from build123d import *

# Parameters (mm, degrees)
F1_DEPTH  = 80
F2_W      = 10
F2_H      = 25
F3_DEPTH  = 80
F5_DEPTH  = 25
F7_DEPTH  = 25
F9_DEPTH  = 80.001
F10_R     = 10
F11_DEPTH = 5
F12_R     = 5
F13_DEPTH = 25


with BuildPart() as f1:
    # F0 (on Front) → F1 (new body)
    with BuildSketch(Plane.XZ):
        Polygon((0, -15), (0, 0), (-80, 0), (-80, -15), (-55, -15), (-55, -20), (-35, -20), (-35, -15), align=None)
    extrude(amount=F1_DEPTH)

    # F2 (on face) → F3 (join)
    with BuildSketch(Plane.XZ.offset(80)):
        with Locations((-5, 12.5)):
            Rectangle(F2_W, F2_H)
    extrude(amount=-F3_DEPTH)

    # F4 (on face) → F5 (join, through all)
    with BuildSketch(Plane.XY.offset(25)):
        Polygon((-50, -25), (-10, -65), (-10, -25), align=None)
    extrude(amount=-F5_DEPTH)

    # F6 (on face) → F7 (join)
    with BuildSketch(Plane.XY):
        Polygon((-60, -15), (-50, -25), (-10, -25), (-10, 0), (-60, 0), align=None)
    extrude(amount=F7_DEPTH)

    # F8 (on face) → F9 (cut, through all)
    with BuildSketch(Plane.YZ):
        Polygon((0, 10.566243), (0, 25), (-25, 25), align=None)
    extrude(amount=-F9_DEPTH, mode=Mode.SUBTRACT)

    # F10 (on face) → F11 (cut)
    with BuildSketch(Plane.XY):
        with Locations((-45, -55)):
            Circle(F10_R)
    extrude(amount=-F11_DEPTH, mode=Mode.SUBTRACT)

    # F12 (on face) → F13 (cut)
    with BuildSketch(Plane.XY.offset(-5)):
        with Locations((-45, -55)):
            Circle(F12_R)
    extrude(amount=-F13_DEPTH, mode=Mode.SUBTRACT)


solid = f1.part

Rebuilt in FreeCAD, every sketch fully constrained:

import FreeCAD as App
import Part
import Sketcher

V = App.Vector
Q = App.Units.Quantity


def add_polygon(sketch, points):
    """Adds a closed chain of lines whose ends are joined by coincident constraints."""
    first, n = sketch.GeometryCount, len(points)
    for a, b in zip(points, points[1:] + points[:1]):
        sketch.addGeometry(Part.LineSegment(App.Vector(*a, 0), App.Vector(*b, 0)), False)
    for i in range(n):
        sketch.addConstraint(Sketcher.Constraint("Coincident", first + i, 2, first + (i + 1) % n, 1))

doc = App.newDocument("Part")
body = doc.addObject("PartDesign::Body", "Body")

sketch1 = body.newObject("Sketcher::SketchObject", "Sketch")
sketch1.AttachmentSupport = (doc.getObject("XZ_Plane"), [""])
sketch1.MapMode = "FlatFace"
add_polygon(sketch1, [(0, -15), (0, 0), (-80, 0), (-80, -15), (-55, -15), (-55, -20), (-35, -20), (-35, -15)])
sketch1.addConstraint([
    Sketcher.Constraint("Vertical", 0),
    Sketcher.Constraint("Horizontal", 1),
    Sketcher.Constraint("Vertical", 2),
    Sketcher.Constraint("Horizontal", 3),
    Sketcher.Constraint("Vertical", 4),
    Sketcher.Constraint("Horizontal", 5),
    Sketcher.Constraint("Vertical", 6),
    Sketcher.Constraint("Horizontal", 7),
    Sketcher.Constraint("Coincident", 0, 2, -1, 1),
    Sketcher.Constraint("Horizontal", 3, 2, 6, 2),
    Sketcher.Constraint("DistanceX", 1, 2, 1, 1, Q("80 mm")),
    Sketcher.Constraint("DistanceX", 3, 1, 3, 2, Q("25 mm")),
    Sketcher.Constraint("DistanceX", 5, 1, 5, 2, Q("20 mm")),
    Sketcher.Constraint("DistanceY", 0, 1, 0, 2, Q("15 mm")),
    Sketcher.Constraint("DistanceY", 4, 2, 4, 1, Q("5 mm")),
])
pad1 = body.newObject("PartDesign::Pad", "Pad")
pad1.Profile = sketch1
pad1.Length = 80

sketch2 = body.newObject("Sketcher::SketchObject", "Sketch001")
sketch2.AttachmentSupport = (doc.getObject("XZ_Plane"), [""])
sketch2.MapMode = "FlatFace"
sketch2.AttachmentOffset = App.Placement(V(0, 0, 80), App.Rotation())
add_polygon(sketch2, [(-10, 25), (-10, 0), (0, 0), (0, 25)])
sketch2.addConstraint([
    Sketcher.Constraint("Vertical", 0),
    Sketcher.Constraint("Horizontal", 1),
    Sketcher.Constraint("Vertical", 2),
    Sketcher.Constraint("Horizontal", 3),
    Sketcher.Constraint("Coincident", 1, 2, -1, 1),
    Sketcher.Constraint("DistanceX", 1, 1, 1, 2, Q("10 mm")),
    Sketcher.Constraint("DistanceY", 0, 2, 0, 1, Q("25 mm")),
])
pad2 = body.newObject("PartDesign::Pad", "Pad001")
pad2.Profile = sketch2
pad2.Length = 80
pad2.Reversed = True

sketch3 = body.newObject("Sketcher::SketchObject", "Sketch002")
sketch3.AttachmentSupport = (doc.getObject("XY_Plane"), [""])
sketch3.MapMode = "FlatFace"
sketch3.AttachmentOffset = App.Placement(V(0, 0, 25), App.Rotation())
add_polygon(sketch3, [(-50, -25), (-10, -65), (-10, -25)])
sketch3.addConstraint([
    Sketcher.Constraint("Vertical", 1),
    Sketcher.Constraint("Horizontal", 2),
    Sketcher.Constraint("Equal", 2, 1),
    Sketcher.Constraint("DistanceX", 2, 2, 2, 1, Q("40 mm")),
    Sketcher.Constraint("DistanceX", 0, 2, -1, 1, Q("10 mm")),
    Sketcher.Constraint("DistanceY", 0, 2, -1, 1, Q("65 mm")),
])
pad3 = body.newObject("PartDesign::Pad", "Pad002")
pad3.Profile = sketch3
pad3.Type = "UpToLast"
pad3.Reversed = True

sketch4 = body.newObject("Sketcher::SketchObject", "Sketch003")
sketch4.AttachmentSupport = (doc.getObject("XY_Plane"), [""])
sketch4.MapMode = "FlatFace"
add_polygon(sketch4, [(-60, -15), (-50, -25), (-10, -25), (-10, 0), (-60, 0)])
sketch4.addConstraint([
    Sketcher.Constraint("Horizontal", 1),
    Sketcher.Constraint("Vertical", 2),
    Sketcher.Constraint("Horizontal", 3),
    Sketcher.Constraint("Vertical", 4),
    Sketcher.Constraint("PointOnObject", 2, 2, -1),
    Sketcher.Constraint("DistanceX", 1, 1, 1, 2, Q("40 mm")),
    Sketcher.Constraint("DistanceX", 3, 2, 3, 1, Q("50 mm")),
    Sketcher.Constraint("DistanceY", 2, 1, 2, 2, Q("25 mm")),
    Sketcher.Constraint("DistanceY", 4, 2, 4, 1, Q("15 mm")),
    Sketcher.Constraint("DistanceX", 0, 2, -1, 1, Q("50 mm")),
])
pad4 = body.newObject("PartDesign::Pad", "Pad003")
pad4.Profile = sketch4
pad4.Length = 25

sketch5 = body.newObject("Sketcher::SketchObject", "Sketch004")
sketch5.AttachmentSupport = (doc.getObject("YZ_Plane"), [""])
sketch5.MapMode = "FlatFace"
add_polygon(sketch5, [(0, 11), (0, 25), (-25, 25)])
sketch5.addConstraint([
    Sketcher.Constraint("Vertical", 0),
    Sketcher.Constraint("Horizontal", 1),
    Sketcher.Constraint("PointOnObject", 0, 2, -2),
    Sketcher.Constraint("DistanceX", 1, 2, 1, 1, Q("25 mm")),
    Sketcher.Constraint("Angle", 2, Q("-30 deg")),
    Sketcher.Constraint("DistanceY", -1, 1, 0, 2, Q("25 mm")),
])
pocket1 = body.newObject("PartDesign::Pocket", "Pocket")
pocket1.Profile = sketch5
pocket1.Type = "ThroughAll"

sketch6 = body.newObject("Sketcher::SketchObject", "Sketch005")
sketch6.AttachmentSupport = (doc.getObject("XY_Plane"), [""])
sketch6.MapMode = "FlatFace"
sketch6.addGeometry(Part.Circle(V(-45, -55, 0), V(0, 0, 1), 10), False)
sketch6.addConstraint([
    Sketcher.Constraint("Diameter", 0, Q("20 mm")),
    Sketcher.Constraint("DistanceX", 0, 3, -1, 1, Q("45 mm")),
    Sketcher.Constraint("DistanceY", 0, 3, -1, 1, Q("55 mm")),
])
pocket2 = body.newObject("PartDesign::Pocket", "Pocket001")
pocket2.Profile = sketch6
pocket2.Length = 5

sketch7 = body.newObject("Sketcher::SketchObject", "Sketch006")
sketch7.AttachmentSupport = (doc.getObject("XY_Plane"), [""])
sketch7.MapMode = "FlatFace"
sketch7.AttachmentOffset = App.Placement(V(0, 0, -5), App.Rotation())
sketch7.addGeometry(Part.Circle(V(-45, -55, 0), V(0, 0, 1), 5), False)
sketch7.addConstraint([
    Sketcher.Constraint("Diameter", 0, Q("10 mm")),
    Sketcher.Constraint("DistanceX", 0, 3, -1, 1, Q("45 mm")),
    Sketcher.Constraint("DistanceY", 0, 3, -1, 1, Q("55 mm")),
])
pocket3 = body.newObject("PartDesign::Pocket", "Pocket002")
pocket3.Profile = sketch7
pocket3.Length = 25

doc.recompute()
